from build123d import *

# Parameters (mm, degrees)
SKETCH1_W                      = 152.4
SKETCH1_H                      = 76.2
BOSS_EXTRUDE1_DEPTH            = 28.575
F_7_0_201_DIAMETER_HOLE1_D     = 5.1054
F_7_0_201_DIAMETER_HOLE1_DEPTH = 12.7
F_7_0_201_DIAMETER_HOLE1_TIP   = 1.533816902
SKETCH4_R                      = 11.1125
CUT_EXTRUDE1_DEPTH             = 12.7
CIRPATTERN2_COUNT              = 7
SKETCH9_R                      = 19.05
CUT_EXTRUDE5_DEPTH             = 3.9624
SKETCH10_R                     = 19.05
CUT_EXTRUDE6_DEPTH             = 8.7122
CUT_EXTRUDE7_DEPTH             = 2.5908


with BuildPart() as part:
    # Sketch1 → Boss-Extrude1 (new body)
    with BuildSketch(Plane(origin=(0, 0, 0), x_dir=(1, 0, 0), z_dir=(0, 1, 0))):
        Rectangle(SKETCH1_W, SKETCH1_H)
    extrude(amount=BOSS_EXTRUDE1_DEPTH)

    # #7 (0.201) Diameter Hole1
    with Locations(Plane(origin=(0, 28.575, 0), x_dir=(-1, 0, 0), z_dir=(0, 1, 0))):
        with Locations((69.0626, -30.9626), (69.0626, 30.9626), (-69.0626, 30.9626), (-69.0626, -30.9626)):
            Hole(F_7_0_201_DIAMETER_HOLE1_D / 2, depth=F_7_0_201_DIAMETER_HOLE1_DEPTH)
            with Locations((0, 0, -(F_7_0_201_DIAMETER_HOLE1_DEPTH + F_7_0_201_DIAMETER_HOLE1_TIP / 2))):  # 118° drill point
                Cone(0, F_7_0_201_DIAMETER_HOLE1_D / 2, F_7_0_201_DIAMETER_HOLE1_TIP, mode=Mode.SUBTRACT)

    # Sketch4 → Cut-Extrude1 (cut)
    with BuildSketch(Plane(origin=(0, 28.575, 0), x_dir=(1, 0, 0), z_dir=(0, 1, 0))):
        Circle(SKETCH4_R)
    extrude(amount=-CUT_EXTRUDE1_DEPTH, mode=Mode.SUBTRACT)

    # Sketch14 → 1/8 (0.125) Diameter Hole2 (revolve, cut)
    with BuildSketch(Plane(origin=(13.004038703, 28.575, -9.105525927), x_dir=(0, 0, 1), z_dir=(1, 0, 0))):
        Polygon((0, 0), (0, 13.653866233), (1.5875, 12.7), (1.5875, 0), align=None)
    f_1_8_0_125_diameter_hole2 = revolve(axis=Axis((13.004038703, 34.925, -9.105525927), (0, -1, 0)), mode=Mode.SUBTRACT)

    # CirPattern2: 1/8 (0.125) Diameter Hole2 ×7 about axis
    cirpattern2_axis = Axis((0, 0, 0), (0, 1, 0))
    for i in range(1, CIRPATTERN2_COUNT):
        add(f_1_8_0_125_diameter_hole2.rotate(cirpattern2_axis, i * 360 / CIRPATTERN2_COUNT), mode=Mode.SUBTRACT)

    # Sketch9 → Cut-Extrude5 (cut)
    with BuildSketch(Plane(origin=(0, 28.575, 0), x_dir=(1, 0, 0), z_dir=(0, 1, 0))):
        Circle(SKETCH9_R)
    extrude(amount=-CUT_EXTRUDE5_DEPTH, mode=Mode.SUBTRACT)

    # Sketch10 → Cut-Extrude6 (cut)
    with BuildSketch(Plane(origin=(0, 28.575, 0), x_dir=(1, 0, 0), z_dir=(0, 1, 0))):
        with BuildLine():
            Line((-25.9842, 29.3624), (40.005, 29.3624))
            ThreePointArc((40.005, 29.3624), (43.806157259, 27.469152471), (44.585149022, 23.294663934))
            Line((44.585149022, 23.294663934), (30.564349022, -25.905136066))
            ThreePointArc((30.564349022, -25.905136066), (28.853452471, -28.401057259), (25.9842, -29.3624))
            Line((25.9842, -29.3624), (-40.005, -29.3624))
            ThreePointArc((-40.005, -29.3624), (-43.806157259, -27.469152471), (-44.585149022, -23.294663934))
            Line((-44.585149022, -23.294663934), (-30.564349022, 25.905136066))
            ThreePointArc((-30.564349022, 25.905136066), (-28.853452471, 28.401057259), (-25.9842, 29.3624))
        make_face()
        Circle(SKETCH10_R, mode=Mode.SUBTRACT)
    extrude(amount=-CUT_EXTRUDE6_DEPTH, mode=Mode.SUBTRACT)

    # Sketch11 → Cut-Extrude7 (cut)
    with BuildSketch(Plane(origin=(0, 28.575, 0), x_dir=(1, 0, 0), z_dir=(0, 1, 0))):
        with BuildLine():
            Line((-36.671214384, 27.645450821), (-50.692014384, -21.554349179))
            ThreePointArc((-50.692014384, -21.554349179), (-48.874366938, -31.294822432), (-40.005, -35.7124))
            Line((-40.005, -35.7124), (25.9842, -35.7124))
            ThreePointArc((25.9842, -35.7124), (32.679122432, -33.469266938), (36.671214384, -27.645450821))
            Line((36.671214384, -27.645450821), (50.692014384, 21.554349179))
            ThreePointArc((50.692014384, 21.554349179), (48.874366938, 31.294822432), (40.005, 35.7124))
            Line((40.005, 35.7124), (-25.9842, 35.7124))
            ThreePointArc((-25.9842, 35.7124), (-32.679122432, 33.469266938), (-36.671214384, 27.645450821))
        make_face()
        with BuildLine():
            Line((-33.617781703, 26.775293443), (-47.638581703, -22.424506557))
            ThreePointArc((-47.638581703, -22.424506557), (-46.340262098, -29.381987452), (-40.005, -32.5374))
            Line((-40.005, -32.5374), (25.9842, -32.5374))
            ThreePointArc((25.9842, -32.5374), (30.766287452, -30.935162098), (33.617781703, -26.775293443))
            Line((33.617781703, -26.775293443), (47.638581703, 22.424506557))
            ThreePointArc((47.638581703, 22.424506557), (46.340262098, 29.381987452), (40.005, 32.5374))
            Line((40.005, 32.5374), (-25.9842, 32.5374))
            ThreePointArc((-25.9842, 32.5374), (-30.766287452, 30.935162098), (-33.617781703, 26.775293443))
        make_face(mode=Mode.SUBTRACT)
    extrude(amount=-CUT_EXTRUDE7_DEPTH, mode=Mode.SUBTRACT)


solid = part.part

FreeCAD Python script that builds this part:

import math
import FreeCAD as App
import Part
import Sketcher

V = App.Vector
Q = App.Units.Quantity

doc = App.newDocument("Part")
body = doc.addObject("PartDesign::Body", "Body")

sketch1 = body.newObject("Sketcher::SketchObject", "Sketch")
sketch1.AttachmentSupport = (doc.getObject("XZ_Plane"), [""])
sketch1.MapMode = "FlatFace"
sketch1.addGeometry([
    Part.LineSegment(V(-76, -38, 0), V(-76, 38, 0)),
    Part.LineSegment(V(-76, 38, 0), V(76, 38, 0)),
    Part.LineSegment(V(76, 38, 0), V(76, -38, 0)),
    Part.LineSegment(V(76, -38, 0), V(-76, -38, 0)),
], False)
sketch1.addConstraint([
    Sketcher.Constraint("Coincident", 0, 2, 1, 1),
    Sketcher.Constraint("Coincident", 1, 2, 2, 1),
    Sketcher.Constraint("Coincident", 2, 2, 3, 1),
    Sketcher.Constraint("Coincident", 3, 2, 0, 1),
    Sketcher.Constraint("Vertical", 0),
    Sketcher.Constraint("Horizontal", 1),
    Sketcher.Constraint("Vertical", 2),
    Sketcher.Constraint("Horizontal", 3),
    Sketcher.Constraint("Symmetric", 0, 2, 2, 2, -1, 1),
    Sketcher.Constraint("DistanceX", 1, 1, 1, 2, Q("6 in")),
    Sketcher.Constraint("DistanceY", 0, 1, 0, 2, Q("3 in")),
])
pad1 = body.newObject("PartDesign::Pad", "Pad")
pad1.Profile = sketch1
pad1.Length = Q("1.125 in")
pad1.Reversed = True

sketch2 = body.newObject("Sketcher::SketchObject", "Sketch001")
sketch2.AttachmentSupport = (doc.getObject("XZ_Plane"), [""])
sketch2.MapMode = "FlatFace"
sketch2.AttachmentOffset = App.Placement(V(0, 0, -1.125 * 25.4), App.Rotation())
sketch2.addGeometry([
    Part.Circle(V(-69.1, -31, 0), V(0, 0, 1), 2.6),
    Part.Circle(V(-69.1, 31, 0), V(0, 0, 1), 2.6),
    Part.Circle(V(69.1, 31, 0), V(0, 0, 1), 2.6),
    Part.Circle(V(69.1, -31, 0), V(0, 0, 1), 2.6),
], False)
sketch2.addConstraint([
    Sketcher.Constraint("Equal", 0, 1),
    Sketcher.Constraint("Equal", 1, 2),
    Sketcher.Constraint("Equal", 2, 3),
    Sketcher.Constraint("Symmetric", 0, 3, 2, 3, -1, 1),
    Sketcher.Constraint("Symmetric", 1, 3, 3, 3, -1, 1),
    Sketcher.Constraint("Symmetric", 1, 3, 2, 3, -2),
    Sketcher.Constraint("Diameter", 0, Q("0.201 in")),
    Sketcher.Constraint("DistanceX", 0, 3, -1, 1, Q("2.719 in")),
    Sketcher.Constraint("DistanceY", 0, 3, -1, 1, Q("1.219 in")),
])
doc.recompute()
hole = body.newObject("PartDesign::Hole", "Hole")
hole.Profile = sketch2
hole.ThreadType = "None"
hole.Diameter = Q("0.201 in")
hole.DepthType = "Dimension"
hole.Depth = Q("0.5 in")
hole.DrillPoint = "Angled"
hole.DrillPointAngle = 118
hole.Reversed = True

sketch3 = body.newObject("Sketcher::SketchObject", "Sketch002")
sketch3.AttachmentSupport = (doc.getObject("XZ_Plane"), [""])
sketch3.MapMode = "FlatFace"
sketch3.AttachmentOffset = App.Placement(V(0, 0, -1.125 * 25.4), App.Rotation())
sketch3.addGeometry(Part.Circle(V(0, 0, 0), V(0, 0, 1), 11), False)
sketch3.addConstraint([
    Sketcher.Constraint("Coincident", 0, 3, -1, 1),
    Sketcher.Constraint("Diameter", 0, Q("0.875 in")),
])
pocket1 = body.newObject("PartDesign::Pocket", "Pocket")
pocket1.Profile = sketch3
pocket1.Length = Q("0.5 in")
pocket1.Reversed = True

sketch4 = body.newObject("Sketcher::SketchObject", "Sketch003")
sketch4.AttachmentSupport = (doc.getObject("YZ_Plane"), [""])
sketch4.MapMode = "FlatFace"
sketch4.AttachmentOffset = App.Placement(V(0, 0, 13.004039), App.Rotation())
sketch4.addGeometry([
    Part.LineSegment(V(14.9, -9.1, 0), V(28.6, -9.1, 0)),
    Part.LineSegment(V(28.6, -9.1, 0), V(28.6, -7.5, 0)),
    Part.LineSegment(V(28.6, -7.5, 0), V(15.9, -7.5, 0)),
    Part.LineSegment(V(15.9, -7.5, 0), V(14.9, -9.1, 0)),
], False)
sketch4.addGeometry(Part.LineSegment(V(28.6, -9.1, 0), V(14.9, -9.1, 0)), True)
sketch4.addConstraint([
    Sketcher.Constraint("Coincident", 0, 2, 1, 1),
    Sketcher.Constraint("Coincident", 1, 2, 2, 1),
    Sketcher.Constraint("Coincident", 2, 2, 3, 1),
    Sketcher.Constraint("Coincident", 3, 2, 0, 1),
    Sketcher.Constraint("Horizontal", 0),
    Sketcher.Constraint("Vertical", 1),
    Sketcher.Constraint("Horizontal", 2),
    Sketcher.Constraint("Horizontal", 4),
    Sketcher.Constraint("Coincident", 4, 1, 0, 2),
    Sketcher.Constraint("Equal", 0, 4),
    Sketcher.Constraint("DistanceX", 2, 2, 2, 1, Q("0.5 in")),
    Sketcher.Constraint("Angle", 3, Q("-121 deg")),
    Sketcher.Constraint("DistanceY", 1, 1, 1, 2, Q("0.0625 in")),
    Sketcher.Constraint("DistanceX", -1, 1, 0, 2, Q("1.125 in")),
    Sketcher.Constraint("DistanceY", 0, 2, -1, 1, 9.105526),
])
groove = body.newObject("PartDesign::Groove", "Groove")
groove.Profile = sketch4
groove.ReferenceAxis = (sketch4, ["Axis0"])
groove.Angle = 360
doc.recompute()

polarpattern = body.newObject("PartDesign::PolarPattern", "PolarPattern")
polarpattern.Originals = [groove]
polarpattern.Axis = (doc.getObject("Y_Axis"), [""])
polarpattern.Angle = 360
polarpattern.Occurrences = 7
body.Tip = polarpattern

sketch5 = body.newObject("Sketcher::SketchObject", "Sketch004")
sketch5.AttachmentSupport = (doc.getObject("XZ_Plane"), [""])
sketch5.MapMode = "FlatFace"
sketch5.AttachmentOffset = App.Placement(V(0, 0, -1.125 * 25.4), App.Rotation())
sketch5.addGeometry(Part.Circle(V(0, 0, 0), V(0, 0, 1), 19), False)
sketch5.addConstraint([
    Sketcher.Constraint("Coincident", 0, 3, -1, 1),
    Sketcher.Constraint("Diameter", 0, Q("1.5 in")),
])
pocket2 = body.newObject("PartDesign::Pocket", "Pocket001")
pocket2.Profile = sketch5
pocket2.Length = Q("0.156 in")
pocket2.Reversed = True

sketch6 = body.newObject("Sketcher::SketchObject", "Sketch005")
sketch6.AttachmentSupport = (doc.getObject("XZ_Plane"), [""])
sketch6.MapMode = "FlatFace"
sketch6.AttachmentOffset = App.Placement(V(0, 0, -1.125 * 25.4), App.Rotation())
sketch6.addGeometry([
    Part.LineSegment(V(40, -29.4, 0), V(-26, -29.4, 0)),
    Part.ArcOfCircle(Part.Circle(V(-26, -24.6, 0), V(0, 0, 1), 4.8), math.radians(-164), math.radians(-90)),
    Part.LineSegment(V(-30.6, -25.9, 0), V(-44.6, 23.3, 0)),
    Part.ArcOfCircle(Part.Circle(V(-40, 24.6, 0), V(0, 0, 1), 4.8), math.radians(90), math.radians(196)),
    Part.LineSegment(V(-40, 29.4, 0), V(26, 29.4, 0)),
    Part.ArcOfCircle(Part.Circle(V(26, 24.6, 0), V(0, 0, 1), 4.8), math.radians(16), math.radians(90)),
    Part.LineSegment(V(30.6, 25.9, 0), V(44.6, -23.3, 0)),
    Part.ArcOfCircle(Part.Circle(V(40, -24.6, 0), V(0, 0, 1), 4.8), math.radians(-90), math.radians(16)),
    Part.Circle(V(0, 0, 0), V(0, 0, 1), 19.1),
], False)
sketch6.addConstraint([
    Sketcher.Constraint("Tangent", 0, 2, 1, 2),
    Sketcher.Constraint("Tangent", 1, 1, 2, 1),
    Sketcher.Constraint("Tangent", 2, 2, 3, 2),
    Sketcher.Constraint("Tangent", 3, 1, 4, 1),
    Sketcher.Constraint("Tangent", 4, 2, 5, 2),
    Sketcher.Constraint("Tangent", 5, 1, 6, 1),
    Sketcher.Constraint("Tangent", 6, 2, 7, 2),
    Sketcher.Constraint("Tangent", 7, 1, 0, 1),
    Sketcher.Constraint("Horizontal", 0),
    Sketcher.Constraint("Horizontal", 4),
    Sketcher.Constraint("Coincident", 8, 3, -1, 1),
    Sketcher.Constraint("Equal", 1, 3),
    Sketcher.Constraint("Equal", 3, 5),
    Sketcher.Constraint("Equal", 5, 7),
    Sketcher.Constraint("Symmetric", 1, 3, 5, 3, -1, 1),
    Sketcher.Constraint("Parallel", 2, 6),
    Sketcher.Constraint("Diameter", 8, Q("1.5 in")),
    Sketcher.Constraint("Radius", 1, Q("0.1875 in")),
    Sketcher.Constraint("DistanceX", 0, 2, 0, 1, Q("2.598 in")),
    Sketcher.Constraint("DistanceX", 3, 3, 7, 3, Q("3.15 in")),
    Sketcher.Constraint("DistanceY", 0, 2, -1, 1, Q("1.156 in")),
])
pocket3 = body.newObject("PartDesign::Pocket", "Pocket002")
pocket3.Profile = sketch6
pocket3.Length = Q("0.343 in")
pocket3.Reversed = True

sketch7 = body.newObject("Sketcher::SketchObject", "Sketch006")
sketch7.AttachmentSupport = (doc.getObject("XZ_Plane"), [""])
sketch7.MapMode = "FlatFace"
sketch7.AttachmentOffset = App.Placement(V(0, 0, -1.125 * 25.4), App.Rotation())
sketch7.addGeometry([
    Part.LineSegment(V(-37, -28, 0), V(-51, 22, 0)),
    Part.ArcOfCircle(Part.Circle(V(-40, 25, 0), V(0, 0, 1), 11), math.radians(90), math.radians(196)),
    Part.LineSegment(V(-40, 36, 0), V(26, 36, 0)),
    Part.ArcOfCircle(Part.Circle(V(26, 25, 0), V(0, 0, 1), 11), math.radians(16), math.radians(90)),
    Part.LineSegment(V(37, 28, 0), V(51, -22, 0)),
    Part.ArcOfCircle(Part.Circle(V(40, -25, 0), V(0, 0, 1), 11), math.radians(-90), math.radians(16)),
    Part.LineSegment(V(40, -36, 0), V(-26, -36, 0)),
    Part.ArcOfCircle(Part.Circle(V(-26, -25, 0), V(0, 0, 1), 11), math.radians(-164), math.radians(-90)),
    Part.LineSegment(V(-48, 22, 0), V(-34, -27, 0)),
    Part.ArcOfCircle(Part.Circle(V(-26, -25, 0), V(0, 0, 1), 8), math.radians(-164), math.radians(-90)),
    Part.LineSegment(V(-26, -33, 0), V(40, -33, 0)),
    Part.ArcOfCircle(Part.Circle(V(40, -25, 0), V(0, 0, 1), 8), math.radians(-90), math.radians(16)),
    Part.LineSegment(V(48, -22, 0), V(34, 27, 0)),
    Part.ArcOfCircle(Part.Circle(V(26, 25, 0), V(0, 0, 1), 8), math.radians(16), math.radians(90)),
    Part.LineSegment(V(26, 33, 0), V(-40, 33, 0)),
    Part.ArcOfCircle(Part.Circle(V(-40, 25, 0), V(0, 0, 1), 8), math.radians(90), math.radians(196)),
], False)
sketch7.addConstraint([
    Sketcher.Constraint("Tangent", 0, 2, 1, 2),
    Sketcher.Constraint("Tangent", 1, 1, 2, 1),
    Sketcher.Constraint("Tangent", 2, 2, 3, 2),
    Sketcher.Constraint("Tangent", 3, 1, 4, 1),
    Sketcher.Constraint("Tangent", 4, 2, 5, 2),
    Sketcher.Constraint("Tangent", 5, 1, 6, 1),
    Sketcher.Constraint("Tangent", 6, 2, 7, 2),
    Sketcher.Constraint("Tangent", 7, 1, 0, 1),
    Sketcher.Constraint("Tangent", 8, 2, 9, 1),
    Sketcher.Constraint("Tangent", 9, 2, 10, 1),
    Sketcher.Constraint("Tangent", 10, 2, 11, 1),
    Sketcher.Constraint("Tangent", 11, 2, 12, 1),
    Sketcher.Constraint("Tangent", 12, 2, 13, 1),
    Sketcher.Constraint("Tangent", 13, 2, 14, 1),
    Sketcher.Constraint("Tangent", 14, 2, 15, 1),
    Sketcher.Constraint("Tangent", 15, 2, 8, 1),
    Sketcher.Constraint("Horizontal", 2),
    Sketcher.Constraint("Horizontal", 6),
    Sketcher.Constraint("Horizontal", 10),
    Sketcher.Constraint("Horizontal", 14),
    Sketcher.Constraint("Coincident", 9, 3, 7, 3),
    Sketcher.Constraint("Coincident", 11, 3, 5, 3),
    Sketcher.Constraint("Coincident", 13, 3, 3, 3),
    Sketcher.Constraint("Coincident", 15, 3, 1, 3),
    Sketcher.Constraint("Equal", 1, 3),
    Sketcher.Constraint("Equal", 3, 5),
    Sketcher.Constraint("Equal", 5, 7),
    Sketcher.Constraint("Equal", 11, 13),
    Sketcher.Constraint("Symmetric", 1, 3, 5, 3, -1, 1),
    Sketcher.Constraint("Parallel", 0, 4),
    Sketcher.Constraint("Radius", 1, Q("0.4375 in")),
    Sketcher.Constraint("Radius", 9, Q("0.3125 in")),
    Sketcher.Constraint("DistanceX", 2, 1, 2, 2, Q("2.598 in")),
    Sketcher.Constraint("DistanceX", 1, 3, 5, 3, Q("3.15 in")),
    Sketcher.Constraint("DistanceY", -1, 1, 1, 1, Q("1.406 in")),
])
pocket4 = body.newObject("PartDesign::Pocket", "Pocket003")
pocket4.Profile = sketch7
pocket4.Length = Q("0.102 in")
pocket4.Reversed = True

doc.recompute()
